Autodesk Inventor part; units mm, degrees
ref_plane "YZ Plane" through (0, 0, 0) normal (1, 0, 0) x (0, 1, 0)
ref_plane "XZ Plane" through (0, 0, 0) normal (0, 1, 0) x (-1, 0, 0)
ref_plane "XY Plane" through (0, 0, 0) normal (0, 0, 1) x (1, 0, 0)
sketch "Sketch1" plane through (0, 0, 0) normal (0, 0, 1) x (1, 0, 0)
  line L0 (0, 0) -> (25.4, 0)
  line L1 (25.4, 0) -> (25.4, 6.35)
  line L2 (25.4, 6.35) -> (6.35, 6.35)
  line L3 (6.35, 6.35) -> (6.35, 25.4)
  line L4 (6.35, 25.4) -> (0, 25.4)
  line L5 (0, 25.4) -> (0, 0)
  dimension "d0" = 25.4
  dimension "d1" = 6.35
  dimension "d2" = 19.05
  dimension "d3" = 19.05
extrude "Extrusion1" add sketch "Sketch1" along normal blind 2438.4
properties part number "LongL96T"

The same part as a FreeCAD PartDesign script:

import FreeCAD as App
import Part
import Sketcher

V = App.Vector
Q = App.Units.Quantity


def add_polygon(sketch, points):
    """Adds a closed chain of lines whose ends are joined by coincident constraints."""
    first, n = sketch.GeometryCount, len(points)
    for a, b in zip(points, points[1:] + points[:1]):
        sketch.addGeometry(Part.LineSegment(App.Vector(*a, 0), App.Vector(*b, 0)), False)
    for i in range(n):
        sketch.addConstraint(Sketcher.Constraint("Coincident", first + i, 2, first + (i + 1) % n, 1))

doc = App.newDocument("Part")
params = doc.addObject("Spreadsheet::Sheet", "Params")
for row, (alias, value) in enumerate([
    ("sketch1_width", "1 in"),
    ("sketch1_width2", "0.75 in"),
    ("pad1_length", "96 in"),
], start=1):
    params.set(f"A{row}", alias)
    params.set(f"B{row}", "=" + value)
    params.setAlias(f"B{row}", alias)

body = doc.addObject("PartDesign::Body", "Body")

# Sketch on XY plane
sketch1 = body.newObject("Sketcher::SketchObject", "Sketch")
sketch1.AttachmentSupport = (doc.getObject("XY_Plane"), [""])
sketch1.MapMode = "FlatFace"
add_polygon(sketch1, [(0, 25), (0, 0), (25, 0), (25, 6), (6, 6), (6, 25)])  # lines 0-5
sketch1.addConstraint(Sketcher.Constraint("Vertical", 0))
sketch1.addConstraint(Sketcher.Constraint("Horizontal", 1))
sketch1.addConstraint(Sketcher.Constraint("Vertical", 2))
sketch1.addConstraint(Sketcher.Constraint("Horizontal", 3))
sketch1.addConstraint(Sketcher.Constraint("Vertical", 4))
sketch1.addConstraint(Sketcher.Constraint("Horizontal", 5))
sketch1.addConstraint(Sketcher.Constraint("Coincident", 0, 2, -1, 1))
sketch1.addConstraint(Sketcher.Constraint("Equal", 1, 0))
sketch1.addConstraint(Sketcher.Constraint("Equal", 5, 2))
sketch1.addConstraint(Sketcher.Constraint("DistanceX", 1, 1, 1, 2, Q("1 in")))
sketch1.addConstraint(Sketcher.Constraint("DistanceX", 3, 2, 3, 1, Q("0.75 in")))
sketch1.setExpression("Constraints[15]", "Params.sketch1_width")
sketch1.setExpression("Constraints[16]", "Params.sketch1_width2")
pad1 = body.newObject("PartDesign::Pad", "Pad")
pad1.Profile = sketch1
pad1.setExpression("Length", "Params.pad1_length")

doc.recompute()
